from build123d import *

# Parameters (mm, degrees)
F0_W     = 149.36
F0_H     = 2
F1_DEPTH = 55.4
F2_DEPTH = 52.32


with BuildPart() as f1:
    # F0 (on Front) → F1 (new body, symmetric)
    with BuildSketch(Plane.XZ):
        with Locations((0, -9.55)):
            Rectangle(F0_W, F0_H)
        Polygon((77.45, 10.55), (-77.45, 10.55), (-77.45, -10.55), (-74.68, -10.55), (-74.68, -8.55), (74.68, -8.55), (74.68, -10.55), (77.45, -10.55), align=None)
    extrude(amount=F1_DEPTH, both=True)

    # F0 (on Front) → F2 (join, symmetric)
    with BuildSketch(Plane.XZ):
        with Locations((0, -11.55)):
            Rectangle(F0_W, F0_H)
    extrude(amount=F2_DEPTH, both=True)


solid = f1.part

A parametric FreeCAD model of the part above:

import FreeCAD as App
import Part
import Sketcher


def add_polygon(sketch, points):
    """Adds a closed chain of lines whose ends are joined by coincident constraints."""
    first, n = sketch.GeometryCount, len(points)
    for a, b in zip(points, points[1:] + points[:1]):
        sketch.addGeometry(Part.LineSegment(App.Vector(*a, 0), App.Vector(*b, 0)), False)
    for i in range(n):
        sketch.addConstraint(Sketcher.Constraint("Coincident", first + i, 2, first + (i + 1) % n, 1))

doc = App.newDocument("Part")
body = doc.addObject("PartDesign::Body", "Body")

# Sketch on XZ plane
sketch1 = body.newObject("Sketcher::SketchObject", "Sketch")
sketch1.AttachmentSupport = (doc.getObject("XZ_Plane"), [""])
sketch1.MapMode = "FlatFace"
add_polygon(sketch1, [(77.45, -10.55), (77.45, 10.55), (-77.45, 10.55), (-77.45, -10.55)])  # lines 0-3
sketch1.addConstraint([
    Sketcher.Constraint("Vertical", 0),
    Sketcher.Constraint("Horizontal", 1),
    Sketcher.Constraint("Vertical", 2),
    Sketcher.Constraint("Horizontal", 3),
    Sketcher.Constraint("Symmetric", 0, 2, 2, 2, -1, 1),
    Sketcher.Constraint("DistanceX", 1, 2, 1, 1, 154.9),
    Sketcher.Constraint("DistanceY", 0, 1, 0, 2, 21.1),
])
pad1 = body.newObject("PartDesign::Pad", "Pad")
pad1.Profile = sketch1
pad1.Length = 110.8
pad1.Midplane = True

# Sketch on XZ plane
sketch2 = body.newObject("Sketcher::SketchObject", "Sketch001")
sketch2.AttachmentSupport = (doc.getObject("XZ_Plane"), [""])
sketch2.MapMode = "FlatFace"
add_polygon(sketch2, [(-74.68, -10.55), (-74.68, -12.55), (74.68, -12.55), (74.68, -10.55)])  # lines 0-3
sketch2.addConstraint([
    Sketcher.Constraint("Vertical", 0),
    Sketcher.Constraint("Horizontal", 1),
    Sketcher.Constraint("Vertical", 2),
    Sketcher.Constraint("Horizontal", 3),
    Sketcher.Constraint("DistanceY", 0, 2, 0, 1, 2.0),
    Sketcher.Constraint("DistanceX", 1, 1, 1, 2, 149.36),
    Sketcher.Constraint("DistanceX", 0, 2, -1, 1, 74.68),
    Sketcher.Constraint("DistanceY", 0, 2, -1, 1, 12.55),
])
pad2 = body.newObject("PartDesign::Pad", "Pad001")
pad2.Profile = sketch2
pad2.Length = 104.64
pad2.Midplane = True

doc.recompute()
